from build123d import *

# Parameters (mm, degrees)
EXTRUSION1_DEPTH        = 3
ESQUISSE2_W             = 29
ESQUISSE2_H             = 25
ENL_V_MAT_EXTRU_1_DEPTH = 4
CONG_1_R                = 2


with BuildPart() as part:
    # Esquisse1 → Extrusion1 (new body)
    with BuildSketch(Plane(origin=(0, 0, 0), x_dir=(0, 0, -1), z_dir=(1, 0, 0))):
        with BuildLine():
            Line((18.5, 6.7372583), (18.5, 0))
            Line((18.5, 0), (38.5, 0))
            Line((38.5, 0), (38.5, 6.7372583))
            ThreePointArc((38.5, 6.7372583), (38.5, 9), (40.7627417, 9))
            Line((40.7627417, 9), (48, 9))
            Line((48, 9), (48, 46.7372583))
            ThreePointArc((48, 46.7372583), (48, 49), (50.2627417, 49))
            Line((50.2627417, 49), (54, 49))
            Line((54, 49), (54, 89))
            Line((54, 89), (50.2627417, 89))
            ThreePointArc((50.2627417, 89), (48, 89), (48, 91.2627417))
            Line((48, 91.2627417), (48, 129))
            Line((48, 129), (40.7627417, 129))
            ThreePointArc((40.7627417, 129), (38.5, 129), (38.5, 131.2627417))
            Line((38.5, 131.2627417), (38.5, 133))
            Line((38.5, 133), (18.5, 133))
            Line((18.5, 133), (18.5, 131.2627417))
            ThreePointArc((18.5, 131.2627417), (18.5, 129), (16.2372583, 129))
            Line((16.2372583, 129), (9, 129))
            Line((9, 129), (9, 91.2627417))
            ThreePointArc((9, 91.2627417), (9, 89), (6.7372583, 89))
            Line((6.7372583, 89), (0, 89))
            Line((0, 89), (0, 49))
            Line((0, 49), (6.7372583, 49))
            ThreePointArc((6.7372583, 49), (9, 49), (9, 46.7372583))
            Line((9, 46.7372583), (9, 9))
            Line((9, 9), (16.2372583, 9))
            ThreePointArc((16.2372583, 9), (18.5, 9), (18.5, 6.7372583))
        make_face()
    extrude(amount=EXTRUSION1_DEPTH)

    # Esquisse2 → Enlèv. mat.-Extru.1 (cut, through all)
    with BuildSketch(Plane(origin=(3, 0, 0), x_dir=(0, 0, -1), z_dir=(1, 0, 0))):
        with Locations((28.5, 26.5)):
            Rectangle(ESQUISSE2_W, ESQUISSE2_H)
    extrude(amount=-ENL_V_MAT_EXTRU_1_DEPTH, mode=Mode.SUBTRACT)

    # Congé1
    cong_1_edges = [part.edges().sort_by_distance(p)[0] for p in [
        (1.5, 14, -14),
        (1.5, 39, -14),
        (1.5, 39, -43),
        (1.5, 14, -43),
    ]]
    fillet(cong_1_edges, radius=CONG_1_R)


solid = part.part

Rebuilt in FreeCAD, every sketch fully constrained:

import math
import FreeCAD as App
import Part
import Sketcher

V = App.Vector
Q = App.Units.Quantity


def edges_at(feature, points):
    """Names of the edges that pass closest to the given points."""
    edges = feature.Shape.Edges
    near = lambda p: min(range(len(edges)), key=lambda i: edges[i].distToShape(Part.Vertex(*p))[0])
    return sorted({f"Edge{near(p) + 1}" for p in points})


def add_polygon(sketch, points):
    """Adds a closed chain of lines whose ends are joined by coincident constraints."""
    first, n = sketch.GeometryCount, len(points)
    for a, b in zip(points, points[1:] + points[:1]):
        sketch.addGeometry(Part.LineSegment(App.Vector(*a, 0), App.Vector(*b, 0)), False)
    for i in range(n):
        sketch.addConstraint(Sketcher.Constraint("Coincident", first + i, 2, first + (i + 1) % n, 1))

doc = App.newDocument("Part")
body = doc.addObject("PartDesign::Body", "Body")

# Sketch on YZ plane
sketch1 = body.newObject("Sketcher::SketchObject", "Sketch")
sketch1.AttachmentSupport = (doc.getObject("YZ_Plane"), [""])
sketch1.MapMode = "FlatFace"
sketch1.addGeometry(Part.LineSegment(V(6.7, -18.5, 0), V(0, -18.5, 0)), False)
sketch1.addGeometry(Part.LineSegment(V(0, -18.5, 0), V(0, -38.5, 0)), False)
sketch1.addGeometry(Part.LineSegment(V(0, -38.5, 0), V(6.7, -38.5, 0)), False)
sketch1.addGeometry(Part.ArcOfCircle(Part.Circle(V(7.9, -39.6, 0), V(0, 0, 1), 1.6), math.radians(-45), math.radians(135)), False)
sketch1.addGeometry(Part.LineSegment(V(9, -40.8, 0), V(9, -48, 0)), False)
sketch1.addGeometry(Part.LineSegment(V(9, -48, 0), V(46.7, -48, 0)), False)
sketch1.addGeometry(Part.ArcOfCircle(Part.Circle(V(47.9, -49.1, 0), V(0, 0, 1), 1.6), math.radians(-45), math.radians(135)), False)
sketch1.addGeometry(Part.LineSegment(V(49, -50.3, 0), V(49, -54, 0)), False)
sketch1.addGeometry(Part.LineSegment(V(49, -54, 0), V(89, -54, 0)), False)
sketch1.addGeometry(Part.LineSegment(V(89, -54, 0), V(89, -50.3, 0)), False)
sketch1.addGeometry(Part.ArcOfCircle(Part.Circle(V(90.1, -49.1, 0), V(0, 0, 1), 1.6), math.radians(45), math.radians(225)), False)
sketch1.addGeometry(Part.LineSegment(V(91.3, -48, 0), V(129, -48, 0)), False)
sketch1.addGeometry(Part.LineSegment(V(129, -48, 0), V(129, -40.8, 0)), False)
sketch1.addGeometry(Part.ArcOfCircle(Part.Circle(V(130.1, -39.6, 0), V(0, 0, 1), 1.6), math.radians(45), math.radians(225)), False)
sketch1.addGeometry(Part.LineSegment(V(131.3, -38.5, 0), V(133, -38.5, 0)), False)
sketch1.addGeometry(Part.LineSegment(V(133, -38.5, 0), V(133, -18.5, 0)), False)
sketch1.addGeometry(Part.LineSegment(V(133, -18.5, 0), V(131.3, -18.5, 0)), False)
sketch1.addGeometry(Part.ArcOfCircle(Part.Circle(V(130.1, -17.4, 0), V(0, 0, 1), 1.6), math.radians(135), math.radians(315)), False)
sketch1.addGeometry(Part.LineSegment(V(129, -16.2, 0), V(129, -9, 0)), False)
sketch1.addGeometry(Part.LineSegment(V(129, -9, 0), V(91.3, -9, 0)), False)
sketch1.addGeometry(Part.ArcOfCircle(Part.Circle(V(90.1, -7.9, 0), V(0, 0, 1), 1.6), math.radians(135), math.radians(315)), False)
sketch1.addGeometry(Part.LineSegment(V(89, -6.7, 0), V(89, 0, 0)), False)
sketch1.addGeometry(Part.LineSegment(V(89, 0, 0), V(49, 0, 0)), False)
sketch1.addGeometry(Part.LineSegment(V(49, 0, 0), V(49, -6.7, 0)), False)
sketch1.addGeometry(Part.ArcOfCircle(Part.Circle(V(47.9, -7.9, 0), V(0, 0, 1), 1.6), math.radians(-135), math.radians(45)), False)
sketch1.addGeometry(Part.LineSegment(V(46.7, -9, 0), V(9, -9, 0)), False)
sketch1.addGeometry(Part.LineSegment(V(9, -9, 0), V(9, -16.2, 0)), False)
sketch1.addGeometry(Part.ArcOfCircle(Part.Circle(V(7.9, -17.4, 0), V(0, 0, 1), 1.6), math.radians(-135), math.radians(45)), False)
sketch1.addConstraint(Sketcher.Constraint("Coincident", 0, 2, 1, 1))
sketch1.addConstraint(Sketcher.Constraint("Coincident", 1, 2, 2, 1))
sketch1.addConstraint(Sketcher.Constraint("Coincident", 2, 2, 3, 2))
sketch1.addConstraint(Sketcher.Constraint("Coincident", 3, 1, 4, 1))
sketch1.addConstraint(Sketcher.Constraint("Coincident", 4, 2, 5, 1))
sketch1.addConstraint(Sketcher.Constraint("Coincident", 5, 2, 6, 2))
sketch1.addConstraint(Sketcher.Constraint("Coincident", 6, 1, 7, 1))
sketch1.addConstraint(Sketcher.Constraint("Coincident", 7, 2, 8, 1))
sketch1.addConstraint(Sketcher.Constraint("Coincident", 8, 2, 9, 1))
sketch1.addConstraint(Sketcher.Constraint("Coincident", 9, 2, 10, 2))
sketch1.addConstraint(Sketcher.Constraint("Coincident", 10, 1, 11, 1))
sketch1.addConstraint(Sketcher.Constraint("Coincident", 11, 2, 12, 1))
sketch1.addConstraint(Sketcher.Constraint("Coincident", 12, 2, 13, 2))
sketch1.addConstraint(Sketcher.Constraint("Coincident", 13, 1, 14, 1))
sketch1.addConstraint(Sketcher.Constraint("Coincident", 14, 2, 15, 1))
sketch1.addConstraint(Sketcher.Constraint("Coincident", 15, 2, 16, 1))
sketch1.addConstraint(Sketcher.Constraint("Coincident", 16, 2, 17, 2))
sketch1.addConstraint(Sketcher.Constraint("Coincident", 17, 1, 18, 1))
sketch1.addConstraint(Sketcher.Constraint("Coincident", 18, 2, 19, 1))
sketch1.addConstraint(Sketcher.Constraint("Coincident", 19, 2, 20, 2))
sketch1.addConstraint(Sketcher.Constraint("Coincident", 20, 1, 21, 1))
sketch1.addConstraint(Sketcher.Constraint("Coincident", 21, 2, 22, 1))
sketch1.addConstraint(Sketcher.Constraint("Coincident", 22, 2, 23, 1))
sketch1.addConstraint(Sketcher.Constraint("Coincident", 23, 2, 24, 2))
sketch1.addConstraint(Sketcher.Constraint("Coincident", 24, 1, 25, 1))
sketch1.addConstraint(Sketcher.Constraint("Coincident", 25, 2, 26, 1))
sketch1.addConstraint(Sketcher.Constraint("Coincident", 26, 2, 27, 2))
sketch1.addConstraint(Sketcher.Constraint("Coincident", 27, 1, 0, 1))
sketch1.addConstraint(Sketcher.Constraint("Horizontal", 0))
sketch1.addConstraint(Sketcher.Constraint("Vertical", 1))
sketch1.addConstraint(Sketcher.Constraint("Horizontal", 2))
sketch1.addConstraint(Sketcher.Constraint("Vertical", 4))
sketch1.addConstraint(Sketcher.Constraint("Horizontal", 5))
sketch1.addConstraint(Sketcher.Constraint("Vertical", 7))
sketch1.addConstraint(Sketcher.Constraint("Horizontal", 8))
sketch1.addConstraint(Sketcher.Constraint("Vertical", 9))
sketch1.addConstraint(Sketcher.Constraint("Horizontal", 11))
sketch1.addConstraint(Sketcher.Constraint("Vertical", 12))
sketch1.addConstraint(Sketcher.Constraint("Horizontal", 14))
sketch1.addConstraint(Sketcher.Constraint("Vertical", 15))
sketch1.addConstraint(Sketcher.Constraint("Horizontal", 16))
sketch1.addConstraint(Sketcher.Constraint("Vertical", 18))
sketch1.addConstraint(Sketcher.Constraint("Horizontal", 19))
sketch1.addConstraint(Sketcher.Constraint("Vertical", 21))
sketch1.addConstraint(Sketcher.Constraint("Horizontal", 22))
sketch1.addConstraint(Sketcher.Constraint("Vertical", 23))
sketch1.addConstraint(Sketcher.Constraint("Horizontal", 25))
sketch1.addConstraint(Sketcher.Constraint("Vertical", 26))
sketch1.addConstraint(Sketcher.Constraint("Equal", 3, 6))
sketch1.addConstraint(Sketcher.Constraint("Equal", 6, 10))
sketch1.addConstraint(Sketcher.Constraint("Equal", 10, 13))
sketch1.addConstraint(Sketcher.Constraint("Equal", 13, 17))
sketch1.addConstraint(Sketcher.Constraint("Equal", 17, 20))
sketch1.addConstraint(Sketcher.Constraint("Equal", 20, 24))
sketch1.addConstraint(Sketcher.Constraint("Equal", 24, 27))
sketch1.addConstraint(Sketcher.Constraint("PointOnObject", 0, 2, -2))
sketch1.addConstraint(Sketcher.Constraint("PointOnObject", 21, 2, -1))
sketch1.addConstraint(Sketcher.Constraint("Horizontal", 6, 3, 10, 3))
sketch1.addConstraint(Sketcher.Constraint("Horizontal", 3, 3, 13, 3))
sketch1.addConstraint(Sketcher.Constraint("Horizontal", 20, 3, 24, 3))
sketch1.addConstraint(Sketcher.Constraint("Horizontal", 17, 3, 27, 3))
sketch1.addConstraint(Sketcher.Constraint("Horizontal", 6, 1, 9, 2))
sketch1.addConstraint(Sketcher.Constraint("Horizontal", 5, 2, 10, 1))
sketch1.addConstraint(Sketcher.Constraint("Horizontal", 3, 1, 12, 2))
sketch1.addConstraint(Sketcher.Constraint("Horizontal", 2, 2, 13, 1))
sketch1.addConstraint(Sketcher.Constraint("Horizontal", 0, 2, 15, 2))
sketch1.addConstraint(Sketcher.Constraint("Horizontal", 20, 1, 23, 2))
sketch1.addConstraint(Sketcher.Constraint("Horizontal", 19, 2, 24, 1))
sketch1.addConstraint(Sketcher.Constraint("Horizontal", 17, 1, 26, 2))
sketch1.addConstraint(Sketcher.Constraint("Vertical", 13, 3, 17, 3))
sketch1.addConstraint(Sketcher.Constraint("Vertical", 10, 3, 20, 3))
sketch1.addConstraint(Sketcher.Constraint("Vertical", 6, 3, 24, 3))
sketch1.addConstraint(Sketcher.Constraint("Vertical", 3, 3, 27, 3))
sketch1.addConstraint(Sketcher.Constraint("Vertical", 13, 1, 16, 2))
sketch1.addConstraint(Sketcher.Constraint("Vertical", 12, 2, 17, 1))
sketch1.addConstraint(Sketcher.Constraint("Vertical", 10, 1, 19, 2))
sketch1.addConstraint(Sketcher.Constraint("Vertical", 9, 2, 20, 1))
sketch1.addConstraint(Sketcher.Constraint("Equal", 5, 11))
sketch1.addConstraint(Sketcher.Constraint("Equal", 12, 18))
sketch1.addConstraint(Sketcher.Constraint("Equal", 2, 21))
sketch1.addConstraint(Sketcher.Constraint("Radius", 3, Q("1.6 mm")))
sketch1.addConstraint(Sketcher.Constraint("DistanceX", 8, 1, 8, 2, Q("40 mm")))
sketch1.addConstraint(Sketcher.Constraint("DistanceY", 1, 2, 1, 1, Q("20 mm")))
sketch1.addConstraint(Sketcher.Constraint("DistanceX", -1, 1, 3, 1, Q("9 mm")))
sketch1.addConstraint(Sketcher.Constraint("DistanceY", 4, 2, -1, 1, Q("48 mm")))
sketch1.addConstraint(Sketcher.Constraint("DistanceX", -1, 1, 6, 1, Q("49 mm")))
sketch1.addConstraint(Sketcher.Constraint("DistanceY", 7, 2, -1, 1, Q("54 mm")))
sketch1.addConstraint(Sketcher.Constraint("DistanceX", -1, 1, 14, 2, Q("133 mm")))
sketch1.addConstraint(Sketcher.Constraint("DistanceY", 18, 2, -1, 1, Q("9 mm")))
sketch1.addConstraint(Sketcher.Constraint("DistanceX", 3, 3, 6, 3, Q("40 mm")))
sketch1.addConstraint(Sketcher.Constraint("DistanceX", 10, 1, 13, 1, Q("40 mm")))
sketch1.addConstraint(Sketcher.Constraint("DistanceX", -1, 1, 3, 3, Q("7.868629 mm")))
pad1 = body.newObject("PartDesign::Pad", "Pad")
pad1.Profile = sketch1
pad1.Length = 3

# Sketch on YZ plane
sketch2 = body.newObject("Sketcher::SketchObject", "Sketch001")
sketch2.AttachmentSupport = (doc.getObject("YZ_Plane"), [""])
sketch2.MapMode = "FlatFace"
sketch2.AttachmentOffset = App.Placement(V(0, 0, 3), App.Rotation())
add_polygon(sketch2, [(39, -14), (14, -14), (14, -43), (39, -43)])  # lines 0-3
sketch2.addConstraint(Sketcher.Constraint("Horizontal", 0))
sketch2.addConstraint(Sketcher.Constraint("Vertical", 1))
sketch2.addConstraint(Sketcher.Constraint("Horizontal", 2))
sketch2.addConstraint(Sketcher.Constraint("Vertical", 3))
sketch2.addConstraint(Sketcher.Constraint("DistanceX", 0, 2, 0, 1, Q("25 mm")))
sketch2.addConstraint(Sketcher.Constraint("DistanceY", 1, 2, 1, 1, Q("29 mm")))
sketch2.addConstraint(Sketcher.Constraint("DistanceX", -1, 1, 0, 2, Q("14 mm")))
sketch2.addConstraint(Sketcher.Constraint("DistanceY", 0, 2, -1, 1, Q("14 mm")))
pocket1 = body.newObject("PartDesign::Pocket", "Pocket")
pocket1.Profile = sketch2
pocket1.Type = "ThroughAll"
doc.recompute()

fillet = body.newObject("PartDesign::Fillet", "Fillet")
fillet.Base = (pocket1, edges_at(pocket1, [
    (1.5, 14, -14),
    (1.5, 39, -14),
    (1.5, 39, -43),
    (1.5, 14, -43),
]))
fillet.Radius = 2

doc.recompute()
